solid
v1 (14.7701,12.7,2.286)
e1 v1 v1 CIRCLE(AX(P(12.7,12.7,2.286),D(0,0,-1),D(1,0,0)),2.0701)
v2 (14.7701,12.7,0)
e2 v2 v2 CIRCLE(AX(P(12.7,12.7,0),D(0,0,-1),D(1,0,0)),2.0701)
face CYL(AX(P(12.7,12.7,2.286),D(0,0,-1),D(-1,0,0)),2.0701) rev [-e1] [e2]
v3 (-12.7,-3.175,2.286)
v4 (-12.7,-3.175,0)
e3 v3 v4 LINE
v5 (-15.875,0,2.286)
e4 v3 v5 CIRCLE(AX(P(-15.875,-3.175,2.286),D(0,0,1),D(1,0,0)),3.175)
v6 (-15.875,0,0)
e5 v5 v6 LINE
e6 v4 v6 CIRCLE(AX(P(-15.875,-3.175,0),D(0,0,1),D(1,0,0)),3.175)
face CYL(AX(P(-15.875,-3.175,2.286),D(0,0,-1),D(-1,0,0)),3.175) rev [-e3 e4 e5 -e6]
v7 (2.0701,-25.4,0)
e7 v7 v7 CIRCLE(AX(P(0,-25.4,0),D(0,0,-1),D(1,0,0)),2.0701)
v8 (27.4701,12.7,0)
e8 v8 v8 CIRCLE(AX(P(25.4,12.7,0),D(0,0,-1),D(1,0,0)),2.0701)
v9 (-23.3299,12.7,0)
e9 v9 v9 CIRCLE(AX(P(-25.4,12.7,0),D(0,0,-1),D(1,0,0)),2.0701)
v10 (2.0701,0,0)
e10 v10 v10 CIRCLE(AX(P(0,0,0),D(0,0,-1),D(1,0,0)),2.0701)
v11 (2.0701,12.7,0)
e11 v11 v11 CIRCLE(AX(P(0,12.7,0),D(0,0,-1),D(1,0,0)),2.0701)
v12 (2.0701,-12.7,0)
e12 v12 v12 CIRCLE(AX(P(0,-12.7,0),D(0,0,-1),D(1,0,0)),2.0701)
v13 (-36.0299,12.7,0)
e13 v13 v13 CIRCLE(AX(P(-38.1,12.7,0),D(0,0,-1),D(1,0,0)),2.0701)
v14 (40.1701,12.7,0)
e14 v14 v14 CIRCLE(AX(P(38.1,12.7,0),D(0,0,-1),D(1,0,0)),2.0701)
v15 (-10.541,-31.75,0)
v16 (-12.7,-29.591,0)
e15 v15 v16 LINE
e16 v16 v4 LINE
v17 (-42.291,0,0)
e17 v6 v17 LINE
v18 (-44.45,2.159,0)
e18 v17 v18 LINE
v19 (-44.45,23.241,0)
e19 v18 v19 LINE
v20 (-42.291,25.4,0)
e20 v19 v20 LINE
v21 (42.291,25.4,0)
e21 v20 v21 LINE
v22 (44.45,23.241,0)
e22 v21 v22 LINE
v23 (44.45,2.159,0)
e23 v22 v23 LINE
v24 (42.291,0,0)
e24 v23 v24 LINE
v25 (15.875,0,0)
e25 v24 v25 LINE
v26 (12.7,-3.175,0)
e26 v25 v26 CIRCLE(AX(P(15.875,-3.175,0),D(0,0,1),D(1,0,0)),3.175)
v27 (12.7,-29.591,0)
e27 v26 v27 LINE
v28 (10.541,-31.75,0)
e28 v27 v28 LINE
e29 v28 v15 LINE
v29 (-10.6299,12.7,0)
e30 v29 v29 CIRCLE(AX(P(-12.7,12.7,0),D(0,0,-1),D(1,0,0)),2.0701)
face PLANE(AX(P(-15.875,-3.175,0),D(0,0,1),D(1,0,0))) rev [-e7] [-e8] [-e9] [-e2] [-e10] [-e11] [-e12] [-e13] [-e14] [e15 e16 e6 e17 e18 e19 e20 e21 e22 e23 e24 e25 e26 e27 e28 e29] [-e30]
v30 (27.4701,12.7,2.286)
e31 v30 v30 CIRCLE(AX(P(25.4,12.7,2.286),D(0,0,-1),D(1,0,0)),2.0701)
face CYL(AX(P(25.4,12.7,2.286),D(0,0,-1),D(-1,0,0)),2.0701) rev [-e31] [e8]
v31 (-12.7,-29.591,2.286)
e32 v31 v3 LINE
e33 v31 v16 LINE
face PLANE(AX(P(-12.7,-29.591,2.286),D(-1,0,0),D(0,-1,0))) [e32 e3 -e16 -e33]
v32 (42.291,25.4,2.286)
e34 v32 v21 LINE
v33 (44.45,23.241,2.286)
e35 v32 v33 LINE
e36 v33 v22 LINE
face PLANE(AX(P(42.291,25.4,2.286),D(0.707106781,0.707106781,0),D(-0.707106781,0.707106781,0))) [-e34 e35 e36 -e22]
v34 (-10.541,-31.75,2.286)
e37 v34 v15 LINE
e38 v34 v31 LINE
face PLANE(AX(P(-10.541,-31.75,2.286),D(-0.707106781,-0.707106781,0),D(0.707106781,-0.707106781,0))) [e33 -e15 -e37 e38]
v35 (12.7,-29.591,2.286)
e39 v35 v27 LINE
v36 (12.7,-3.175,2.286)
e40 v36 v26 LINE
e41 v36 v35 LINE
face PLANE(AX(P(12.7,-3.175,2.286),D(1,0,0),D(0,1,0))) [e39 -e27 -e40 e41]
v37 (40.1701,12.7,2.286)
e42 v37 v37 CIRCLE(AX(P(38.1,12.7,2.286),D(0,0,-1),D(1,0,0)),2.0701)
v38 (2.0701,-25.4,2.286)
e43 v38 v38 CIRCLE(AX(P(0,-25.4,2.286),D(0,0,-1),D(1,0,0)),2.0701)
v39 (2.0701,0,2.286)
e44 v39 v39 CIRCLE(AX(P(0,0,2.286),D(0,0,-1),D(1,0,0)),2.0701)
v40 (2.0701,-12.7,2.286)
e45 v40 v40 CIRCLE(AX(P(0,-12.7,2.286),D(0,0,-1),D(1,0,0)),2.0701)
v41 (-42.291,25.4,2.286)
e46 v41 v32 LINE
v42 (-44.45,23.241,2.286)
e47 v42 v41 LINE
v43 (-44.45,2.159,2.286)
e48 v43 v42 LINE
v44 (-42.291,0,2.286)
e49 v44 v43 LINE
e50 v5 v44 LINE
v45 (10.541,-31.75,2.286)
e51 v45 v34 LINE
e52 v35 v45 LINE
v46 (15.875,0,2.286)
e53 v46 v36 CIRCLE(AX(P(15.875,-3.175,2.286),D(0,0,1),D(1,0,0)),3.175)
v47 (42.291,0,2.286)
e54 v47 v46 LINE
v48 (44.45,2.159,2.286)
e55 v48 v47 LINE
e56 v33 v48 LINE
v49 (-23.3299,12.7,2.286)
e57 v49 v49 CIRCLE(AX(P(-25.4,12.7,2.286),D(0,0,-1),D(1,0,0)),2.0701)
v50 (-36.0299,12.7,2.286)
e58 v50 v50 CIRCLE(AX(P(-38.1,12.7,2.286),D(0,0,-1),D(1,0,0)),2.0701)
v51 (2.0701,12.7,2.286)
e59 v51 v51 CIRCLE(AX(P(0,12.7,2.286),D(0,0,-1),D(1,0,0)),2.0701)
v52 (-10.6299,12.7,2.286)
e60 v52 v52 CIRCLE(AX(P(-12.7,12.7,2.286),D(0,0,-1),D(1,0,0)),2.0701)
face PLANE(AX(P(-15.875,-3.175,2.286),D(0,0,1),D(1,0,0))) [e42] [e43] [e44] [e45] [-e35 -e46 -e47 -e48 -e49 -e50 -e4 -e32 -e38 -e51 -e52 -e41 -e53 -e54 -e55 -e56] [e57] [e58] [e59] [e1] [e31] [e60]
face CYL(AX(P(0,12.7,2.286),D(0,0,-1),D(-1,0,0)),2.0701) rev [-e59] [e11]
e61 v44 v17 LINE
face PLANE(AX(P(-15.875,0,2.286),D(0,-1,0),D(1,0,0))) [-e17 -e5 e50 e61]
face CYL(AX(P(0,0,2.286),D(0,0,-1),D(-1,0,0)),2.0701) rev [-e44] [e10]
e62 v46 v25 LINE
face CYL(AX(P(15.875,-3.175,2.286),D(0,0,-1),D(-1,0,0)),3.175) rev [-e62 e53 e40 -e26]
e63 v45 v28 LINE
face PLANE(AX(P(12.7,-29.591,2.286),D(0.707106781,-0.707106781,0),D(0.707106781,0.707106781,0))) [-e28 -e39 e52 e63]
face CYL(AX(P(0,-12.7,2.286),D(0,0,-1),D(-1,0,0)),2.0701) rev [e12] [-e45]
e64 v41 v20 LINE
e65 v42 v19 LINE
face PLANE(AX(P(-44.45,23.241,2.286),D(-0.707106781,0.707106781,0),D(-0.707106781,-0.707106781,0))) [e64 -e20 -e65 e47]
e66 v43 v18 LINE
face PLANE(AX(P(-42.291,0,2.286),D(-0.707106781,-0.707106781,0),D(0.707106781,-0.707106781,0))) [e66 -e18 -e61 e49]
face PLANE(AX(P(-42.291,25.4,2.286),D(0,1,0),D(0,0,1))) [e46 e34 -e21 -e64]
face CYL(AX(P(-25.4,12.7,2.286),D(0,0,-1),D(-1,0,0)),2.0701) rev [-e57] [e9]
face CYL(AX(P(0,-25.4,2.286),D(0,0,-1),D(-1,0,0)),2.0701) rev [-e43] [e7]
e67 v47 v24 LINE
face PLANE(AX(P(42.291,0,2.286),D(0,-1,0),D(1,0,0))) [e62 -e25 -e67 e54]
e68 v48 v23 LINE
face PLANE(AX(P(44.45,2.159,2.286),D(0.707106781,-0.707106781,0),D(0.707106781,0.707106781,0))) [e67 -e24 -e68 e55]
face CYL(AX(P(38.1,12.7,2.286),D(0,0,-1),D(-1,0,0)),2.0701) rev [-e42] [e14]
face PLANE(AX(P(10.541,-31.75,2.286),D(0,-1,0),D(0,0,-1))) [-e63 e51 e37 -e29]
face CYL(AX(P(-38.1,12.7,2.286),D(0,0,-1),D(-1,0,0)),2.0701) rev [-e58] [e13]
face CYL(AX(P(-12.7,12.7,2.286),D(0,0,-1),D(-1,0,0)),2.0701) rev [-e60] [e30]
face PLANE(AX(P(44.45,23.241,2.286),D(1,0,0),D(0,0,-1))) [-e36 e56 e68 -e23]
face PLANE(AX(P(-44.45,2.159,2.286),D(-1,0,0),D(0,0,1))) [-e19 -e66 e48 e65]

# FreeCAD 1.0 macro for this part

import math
import FreeCAD as App
import Part
import Sketcher
from FreeCAD import Vector
Q = App.Units.Quantity

doc = App.newDocument("Part")
params = doc.addObject("Spreadsheet::Sheet", "Params")
for row, (alias, value) in enumerate([
    ("sketch1_diameter", "0.163 in"),
    ("sketch1_radius", "0.125 in"),
    ("sketch1_width", "0.83 in"),
    ("sketch1_width2", "1.04 in"),
    ("pad1_length", "0.09 in"),
], start=1):
    params.set(f"A{row}", alias)
    params.set(f"B{row}", "=" + value)
    params.setAlias(f"B{row}", alias)

body = doc.addObject("PartDesign::Body", "Body")

# Sketch on XY plane
sketch1 = doc.addObject("Sketcher::SketchObject", "Sketch")
body.addObject(sketch1)
sketch1.AttachmentSupport = (doc.XY_Plane, [""])
sketch1.MapMode = "FlatFace"
sketch1.addGeometry(Part.LineSegment(Vector(12.7, -29.6, 0), Vector(10.5, -31.8, 0)), False)
sketch1.addGeometry(Part.LineSegment(Vector(10.5, -31.8, 0), Vector(-10.5, -31.8, 0)), False)
sketch1.addGeometry(Part.LineSegment(Vector(-10.5, -31.8, 0), Vector(-12.7, -29.6, 0)), False)
sketch1.addGeometry(Part.LineSegment(Vector(-12.7, -29.6, 0), Vector(-12.7, -3.2, 0)), False)
sketch1.addGeometry(Part.ArcOfCircle(Part.Circle(Vector(-15.9, -3.2, 0), Vector(0, 0, 1), 3.2), math.radians(0), math.radians(90)), False)
sketch1.addGeometry(Part.LineSegment(Vector(-15.9, 0, 0), Vector(-42.3, 0, 0)), False)
sketch1.addGeometry(Part.LineSegment(Vector(-42.3, 0, 0), Vector(-44.5, 2.2, 0)), False)
sketch1.addGeometry(Part.LineSegment(Vector(-44.5, 2.2, 0), Vector(-44.5, 23.2, 0)), False)
sketch1.addGeometry(Part.LineSegment(Vector(-44.5, 23.2, 0), Vector(-42.3, 25.4, 0)), False)
sketch1.addGeometry(Part.LineSegment(Vector(-42.3, 25.4, 0), Vector(42.3, 25.4, 0)), False)
sketch1.addGeometry(Part.LineSegment(Vector(42.3, 25.4, 0), Vector(44.5, 23.2, 0)), False)
sketch1.addGeometry(Part.LineSegment(Vector(44.5, 23.2, 0), Vector(44.5, 2.2, 0)), False)
sketch1.addGeometry(Part.LineSegment(Vector(44.5, 2.2, 0), Vector(42.3, 0, 0)), False)
sketch1.addGeometry(Part.LineSegment(Vector(42.3, 0, 0), Vector(15.9, 0, 0)), False)
sketch1.addGeometry(Part.ArcOfCircle(Part.Circle(Vector(15.9, -3.2, 0), Vector(0, 0, 1), 3.2), math.radians(90), math.radians(180)), False)
sketch1.addGeometry(Part.LineSegment(Vector(12.7, -3.2, 0), Vector(12.7, -29.6, 0)), False)
sketch1.addGeometry(Part.Circle(Vector(0, -25.4, 0), Vector(0, 0, 1), 2.1), False)
sketch1.addGeometry(Part.Circle(Vector(0, -12.7, 0), Vector(0, 0, 1), 2.1), False)
sketch1.addGeometry(Part.Circle(Vector(38.1, 12.7, 0), Vector(0, 0, 1), 2.1), False)
sketch1.addGeometry(Part.Circle(Vector(25.4, 12.7, 0), Vector(0, 0, 1), 2.1), False)
sketch1.addGeometry(Part.Circle(Vector(12.7, 12.7, 0), Vector(0, 0, 1), 2.1), False)
sketch1.addGeometry(Part.Circle(Vector(0, 0, 0), Vector(0, 0, 1), 2.1), False)
sketch1.addGeometry(Part.Circle(Vector(0, 12.7, 0), Vector(0, 0, 1), 2.1), False)
sketch1.addGeometry(Part.Circle(Vector(-12.7, 12.7, 0), Vector(0, 0, 1), 2.1), False)
sketch1.addGeometry(Part.Circle(Vector(-25.4, 12.7, 0), Vector(0, 0, 1), 2.1), False)
sketch1.addGeometry(Part.Circle(Vector(-38.1, 12.7, 0), Vector(0, 0, 1), 2.1), False)
sketch1.addConstraint(Sketcher.Constraint("Coincident", 0, 2, 1, 1))
sketch1.addConstraint(Sketcher.Constraint("Coincident", 1, 2, 2, 1))
sketch1.addConstraint(Sketcher.Constraint("Coincident", 2, 2, 3, 1))
sketch1.addConstraint(Sketcher.Constraint("Tangent", 3, 2, 4, 1))
sketch1.addConstraint(Sketcher.Constraint("Tangent", 4, 2, 5, 1))
sketch1.addConstraint(Sketcher.Constraint("Coincident", 5, 2, 6, 1))
sketch1.addConstraint(Sketcher.Constraint("Coincident", 6, 2, 7, 1))
sketch1.addConstraint(Sketcher.Constraint("Coincident", 7, 2, 8, 1))
sketch1.addConstraint(Sketcher.Constraint("Coincident", 8, 2, 9, 1))
sketch1.addConstraint(Sketcher.Constraint("Coincident", 9, 2, 10, 1))
sketch1.addConstraint(Sketcher.Constraint("Coincident", 10, 2, 11, 1))
sketch1.addConstraint(Sketcher.Constraint("Coincident", 11, 2, 12, 1))
sketch1.addConstraint(Sketcher.Constraint("Coincident", 12, 2, 13, 1))
sketch1.addConstraint(Sketcher.Constraint("Tangent", 13, 2, 14, 1))
sketch1.addConstraint(Sketcher.Constraint("Tangent", 14, 2, 15, 1))
sketch1.addConstraint(Sketcher.Constraint("Coincident", 15, 2, 0, 1))
sketch1.addConstraint(Sketcher.Constraint("Horizontal", 1))
sketch1.addConstraint(Sketcher.Constraint("Vertical", 3))
sketch1.addConstraint(Sketcher.Constraint("Horizontal", 5))
sketch1.addConstraint(Sketcher.Constraint("Vertical", 7))
sketch1.addConstraint(Sketcher.Constraint("Horizontal", 9))
sketch1.addConstraint(Sketcher.Constraint("Vertical", 11))
sketch1.addConstraint(Sketcher.Constraint("Horizontal", 13))
sketch1.addConstraint(Sketcher.Constraint("Vertical", 15))
sketch1.addConstraint(Sketcher.Constraint("Coincident", 21, 3, -1, 1))
sketch1.addConstraint(Sketcher.Constraint("Equal", 4, 14))
sketch1.addConstraint(Sketcher.Constraint("Equal", 16, 17))
sketch1.addConstraint(Sketcher.Constraint("Equal", 17, 18))
sketch1.addConstraint(Sketcher.Constraint("Equal", 18, 19))
sketch1.addConstraint(Sketcher.Constraint("Equal", 19, 20))
sketch1.addConstraint(Sketcher.Constraint("Equal", 20, 21))
sketch1.addConstraint(Sketcher.Constraint("Equal", 21, 22))
sketch1.addConstraint(Sketcher.Constraint("Equal", 22, 23))
sketch1.addConstraint(Sketcher.Constraint("Equal", 23, 24))
sketch1.addConstraint(Sketcher.Constraint("Equal", 24, 25))
sketch1.addConstraint(Sketcher.Constraint("Symmetric", 17, 3, 22, 3, -1, 1))
sketch1.addConstraint(Sketcher.Constraint("Symmetric", 5, 2, 12, 2, -1, 1))
sketch1.addConstraint(Sketcher.Constraint("Symmetric", 4, 3, 14, 3, -2))
sketch1.addConstraint(Sketcher.Constraint("Symmetric", 20, 3, 23, 3, -2))
sketch1.addConstraint(Sketcher.Constraint("Symmetric", 19, 3, 24, 3, -2))
sketch1.addConstraint(Sketcher.Constraint("Symmetric", 18, 3, 25, 3, -2))
sketch1.addConstraint(Sketcher.Constraint("Symmetric", 7, 2, 10, 2, -2))
sketch1.addConstraint(Sketcher.Constraint("PointOnObject", 16, 3, -2))
sketch1.addConstraint(Sketcher.Constraint("PointOnObject", 17, 3, -2))
sketch1.addConstraint(Sketcher.Constraint("Perpendicular", 0, 2))
sketch1.addConstraint(Sketcher.Constraint("Parallel", 2, 6))
sketch1.addConstraint(Sketcher.Constraint("Perpendicular", 6, 8))
sketch1.addConstraint(Sketcher.Constraint("Perpendicular", 8, 10))
sketch1.addConstraint(Sketcher.Constraint("Perpendicular", 10, 12))
sketch1.addConstraint(Sketcher.Constraint("Horizontal", 18, 3, 19, 3))
sketch1.addConstraint(Sketcher.Constraint("Horizontal", 19, 3, 20, 3))
sketch1.addConstraint(Sketcher.Constraint("Horizontal", 20, 3, 22, 3))
sketch1.addConstraint(Sketcher.Constraint("Horizontal", 6, 2, 11, 2))
sketch1.addConstraint(Sketcher.Constraint("Horizontal", 2, 2, 15, 2))
sketch1.addConstraint(Sketcher.Constraint("Vertical", 23, 3, 2, 2))
sketch1.addConstraint(Sketcher.Constraint("Vertical", 5, 2, 8, 2))
sketch1.addConstraint(Sketcher.Constraint("Equal", 13, 3))
sketch1.addConstraint(Sketcher.Constraint("Equal", 1, 7))
sketch1.addConstraint(Sketcher.Constraint("Equal", 2, 6))
sketch1.addConstraint(Sketcher.Constraint("Diameter", 16, Q("0.163 in")))
sketch1.addConstraint(Sketcher.Constraint("DistanceY", 16, 3, -1, 1, Q("1 in")))
sketch1.addConstraint(Sketcher.Constraint("DistanceX", -1, 1, 19, 3, Q("1 in")))
sketch1.addConstraint(Sketcher.Constraint("DistanceY", -1, 1, 8, 2, Q("1 in")))
sketch1.addConstraint(Sketcher.Constraint("Radius", 4, Q("0.125 in")))
sketch1.addConstraint(Sketcher.Constraint("DistanceY", 17, 3, 18, 3, Q("1 in")))
sketch1.addConstraint(Sketcher.Constraint("DistanceX", 20, 3, 18, 3, Q("1 in")))
sketch1.addConstraint(Sketcher.Constraint("DistanceX", 1, 2, 1, 1, Q("0.83 in")))
sketch1.addConstraint(Sketcher.Constraint("DistanceX", 5, 2, 5, 1, Q("1.04 in")))
sketch1.setExpression("Constraints[59]", "Params.sketch1_diameter")
sketch1.setExpression("Constraints[63]", "Params.sketch1_radius")
sketch1.setExpression("Constraints[66]", "Params.sketch1_width")
sketch1.setExpression("Constraints[67]", "Params.sketch1_width2")
pad1 = doc.addObject("PartDesign::Pad", "Pad")
body.addObject(pad1)
pad1.Profile = sketch1
pad1.setExpression("Length", "Params.pad1_length")

doc.recompute()
